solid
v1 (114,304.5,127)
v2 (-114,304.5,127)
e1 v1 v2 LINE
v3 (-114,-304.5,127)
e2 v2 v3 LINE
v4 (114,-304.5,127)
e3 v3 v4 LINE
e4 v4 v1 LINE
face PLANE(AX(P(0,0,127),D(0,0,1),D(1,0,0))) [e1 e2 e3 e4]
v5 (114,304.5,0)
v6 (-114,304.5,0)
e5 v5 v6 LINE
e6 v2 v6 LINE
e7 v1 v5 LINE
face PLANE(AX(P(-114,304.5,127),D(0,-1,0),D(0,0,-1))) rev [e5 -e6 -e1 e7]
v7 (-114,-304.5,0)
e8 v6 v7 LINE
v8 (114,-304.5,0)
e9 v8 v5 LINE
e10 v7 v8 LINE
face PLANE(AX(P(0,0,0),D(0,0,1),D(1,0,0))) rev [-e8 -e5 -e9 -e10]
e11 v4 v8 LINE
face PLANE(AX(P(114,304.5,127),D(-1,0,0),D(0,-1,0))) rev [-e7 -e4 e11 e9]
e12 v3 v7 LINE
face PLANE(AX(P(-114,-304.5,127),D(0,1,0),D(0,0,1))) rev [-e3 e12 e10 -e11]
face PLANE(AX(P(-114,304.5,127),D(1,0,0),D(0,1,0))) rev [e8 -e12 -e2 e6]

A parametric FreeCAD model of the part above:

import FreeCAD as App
import Part
import Sketcher
Q = App.Units.Quantity


def add_polygon(sketch, points):
    """Adds a closed chain of lines whose ends are joined by coincident constraints."""
    first, n = sketch.GeometryCount, len(points)
    for a, b in zip(points, points[1:] + points[:1]):
        sketch.addGeometry(Part.LineSegment(App.Vector(*a, 0), App.Vector(*b, 0)), False)
    for i in range(n):
        sketch.addConstraint(Sketcher.Constraint("Coincident", first + i, 2, first + (i + 1) % n, 1))

doc = App.newDocument("Part")
body = doc.addObject("PartDesign::Body", "Body")

# Sketch on XY plane
sketch1 = doc.addObject("Sketcher::SketchObject", "Sketch")
body.addObject(sketch1)
sketch1.AttachmentSupport = (doc.XY_Plane, [""])
sketch1.MapMode = "FlatFace"
add_polygon(sketch1, [(-114, 304.5), (-114, -304.5), (114, -304.5), (114, 304.5)])  # lines 0-3
sketch1.addConstraint([
    Sketcher.Constraint("Vertical", 0),
    Sketcher.Constraint("Horizontal", 1),
    Sketcher.Constraint("Vertical", 2),
    Sketcher.Constraint("Horizontal", 3),
    Sketcher.Constraint("Symmetric", 0, 2, 2, 2, -1, 1),
    Sketcher.Constraint("DistanceX", 1, 1, 1, 2, Q("228 mm")),
    Sketcher.Constraint("DistanceY", 0, 2, 0, 1, Q("609 mm")),
])
pad1 = doc.addObject("PartDesign::Pad", "Pad")
body.addObject(pad1)
pad1.Profile = sketch1
pad1.Length = 127

doc.recompute()
